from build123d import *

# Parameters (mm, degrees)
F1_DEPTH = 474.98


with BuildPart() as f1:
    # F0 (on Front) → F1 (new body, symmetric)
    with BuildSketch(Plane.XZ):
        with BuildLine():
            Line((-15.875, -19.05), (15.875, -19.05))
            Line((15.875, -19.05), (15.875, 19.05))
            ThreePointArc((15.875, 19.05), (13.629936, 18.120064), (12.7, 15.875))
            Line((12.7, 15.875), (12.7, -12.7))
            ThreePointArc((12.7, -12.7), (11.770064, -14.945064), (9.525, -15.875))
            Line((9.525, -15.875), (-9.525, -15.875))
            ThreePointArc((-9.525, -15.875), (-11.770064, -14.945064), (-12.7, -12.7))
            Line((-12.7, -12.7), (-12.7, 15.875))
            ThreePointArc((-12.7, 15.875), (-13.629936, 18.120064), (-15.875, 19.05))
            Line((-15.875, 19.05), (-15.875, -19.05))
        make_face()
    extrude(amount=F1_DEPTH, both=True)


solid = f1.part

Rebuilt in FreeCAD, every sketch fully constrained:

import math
import FreeCAD as App
import Part
import Sketcher
Q = App.Units.Quantity

doc = App.newDocument("Part")
params = doc.addObject("Spreadsheet::Sheet", "Params")
for row, (alias, value) in enumerate([
    ("sketch1_height", "1.5 in"),
    ("sketch1_radius", "0.125 in"),
    ("pad1_length", "37.4 in"),
], start=1):
    params.set(f"A{row}", alias)
    params.set(f"B{row}", "=" + value)
    params.setAlias(f"B{row}", alias)

body = doc.addObject("PartDesign::Body", "Body")

sketch1 = body.newObject("Sketcher::SketchObject", "Sketch")
sketch1.AttachmentSupport = (doc.getObject("XZ_Plane"), [""])
sketch1.MapMode = "FlatFace"
sketch1.addGeometry([
    Part.LineSegment(App.Vector(-15.9, -19.1, 0), App.Vector(15.9, -19.1, 0)),
    Part.LineSegment(App.Vector(15.9, -19.1, 0), App.Vector(15.9, 19.1, 0)),
    Part.ArcOfCircle(Part.Circle(App.Vector(15.9, 15.9, 0), App.Vector(0, 0, 1), 3.2), math.radians(90), math.radians(180)),
    Part.LineSegment(App.Vector(12.7, 15.9, 0), App.Vector(12.7, -12.7, 0)),
    Part.ArcOfCircle(Part.Circle(App.Vector(9.5, -12.7, 0), App.Vector(0, 0, 1), 3.2), math.radians(-90), math.radians(0)),
    Part.LineSegment(App.Vector(9.5, -15.9, 0), App.Vector(-9.5, -15.9, 0)),
    Part.ArcOfCircle(Part.Circle(App.Vector(-9.5, -12.7, 0), App.Vector(0, 0, 1), 3.2), math.radians(-180), math.radians(-90)),
    Part.LineSegment(App.Vector(-12.7, -12.7, 0), App.Vector(-12.7, 15.9, 0)),
    Part.ArcOfCircle(Part.Circle(App.Vector(-15.9, 15.9, 0), App.Vector(0, 0, 1), 3.2), math.radians(0), math.radians(90)),
    Part.LineSegment(App.Vector(-15.9, 19.1, 0), App.Vector(-15.9, -19.1, 0)),
], False)
sketch1.addConstraint([
    Sketcher.Constraint("Coincident", 0, 2, 1, 1),
    Sketcher.Constraint("Coincident", 1, 2, 2, 1),
    Sketcher.Constraint("Tangent", 2, 2, 3, 1),
    Sketcher.Constraint("Tangent", 3, 2, 4, 2),
    Sketcher.Constraint("Tangent", 4, 1, 5, 1),
    Sketcher.Constraint("Tangent", 5, 2, 6, 2),
    Sketcher.Constraint("Tangent", 6, 1, 7, 1),
    Sketcher.Constraint("Tangent", 7, 2, 8, 1),
    Sketcher.Constraint("Coincident", 8, 2, 9, 1),
    Sketcher.Constraint("Coincident", 9, 2, 0, 1),
    Sketcher.Constraint("Horizontal", 0),
    Sketcher.Constraint("Vertical", 1),
    Sketcher.Constraint("Vertical", 3),
    Sketcher.Constraint("Horizontal", 5),
    Sketcher.Constraint("Vertical", 7),
    Sketcher.Constraint("Vertical", 9),
    Sketcher.Constraint("Equal", 2, 4),
    Sketcher.Constraint("Equal", 4, 6),
    Sketcher.Constraint("Equal", 6, 8),
    Sketcher.Constraint("Symmetric", 0, 2, 8, 2, -1, 1),
    Sketcher.Constraint("Symmetric", 2, 3, 8, 3, -2),
    Sketcher.Constraint("Vertical", 2, 3, 0, 2),
    Sketcher.Constraint("DistanceY", 1, 1, 1, 2, Q("1.5 in")),
    Sketcher.Constraint("Radius", 2, Q("0.125 in")),
    Sketcher.Constraint("DistanceX", 6, 3, 2, 3, Q("1 in")),
    Sketcher.Constraint("DistanceY", 4, 3, -1, 1, Q("0.5 in")),
])
sketch1.setExpression("Constraints[22]", "Params.sketch1_height")
sketch1.setExpression("Constraints[23]", "Params.sketch1_radius")
pad1 = body.newObject("PartDesign::Pad", "Pad")
pad1.Profile = sketch1
pad1.setExpression("Length", "Params.pad1_length")
pad1.Midplane = True

doc.recompute()
